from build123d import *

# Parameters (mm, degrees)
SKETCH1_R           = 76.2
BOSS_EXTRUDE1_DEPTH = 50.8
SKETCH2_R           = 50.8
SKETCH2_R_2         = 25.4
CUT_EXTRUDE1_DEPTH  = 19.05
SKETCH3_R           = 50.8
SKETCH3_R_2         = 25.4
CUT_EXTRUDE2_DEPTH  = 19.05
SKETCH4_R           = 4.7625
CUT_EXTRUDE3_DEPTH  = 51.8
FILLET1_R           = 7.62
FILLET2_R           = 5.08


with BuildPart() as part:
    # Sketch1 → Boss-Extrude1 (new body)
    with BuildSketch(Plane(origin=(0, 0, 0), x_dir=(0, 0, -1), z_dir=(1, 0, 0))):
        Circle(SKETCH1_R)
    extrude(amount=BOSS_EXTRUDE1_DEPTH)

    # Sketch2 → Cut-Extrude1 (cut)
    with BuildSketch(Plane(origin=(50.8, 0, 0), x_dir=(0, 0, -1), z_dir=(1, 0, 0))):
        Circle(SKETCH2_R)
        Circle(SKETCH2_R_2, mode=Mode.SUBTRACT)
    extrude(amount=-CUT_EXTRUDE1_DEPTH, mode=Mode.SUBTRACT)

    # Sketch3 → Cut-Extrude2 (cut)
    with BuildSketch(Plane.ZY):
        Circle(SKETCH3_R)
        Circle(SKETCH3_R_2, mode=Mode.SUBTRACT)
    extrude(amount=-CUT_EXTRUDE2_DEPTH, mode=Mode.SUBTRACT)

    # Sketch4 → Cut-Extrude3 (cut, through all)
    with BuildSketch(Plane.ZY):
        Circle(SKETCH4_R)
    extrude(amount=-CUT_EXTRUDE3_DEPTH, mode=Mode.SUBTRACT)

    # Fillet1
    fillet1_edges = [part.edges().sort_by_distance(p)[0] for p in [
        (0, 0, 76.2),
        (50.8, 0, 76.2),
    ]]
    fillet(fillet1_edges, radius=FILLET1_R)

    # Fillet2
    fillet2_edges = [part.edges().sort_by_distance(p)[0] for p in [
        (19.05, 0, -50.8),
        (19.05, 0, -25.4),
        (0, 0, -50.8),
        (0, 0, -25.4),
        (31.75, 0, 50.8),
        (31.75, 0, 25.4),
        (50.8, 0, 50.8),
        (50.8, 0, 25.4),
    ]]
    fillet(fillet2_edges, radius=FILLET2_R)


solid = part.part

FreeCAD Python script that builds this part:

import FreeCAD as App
import Part
import Sketcher
from FreeCAD import Vector
Q = App.Units.Quantity


def edges_at(feature, points):
    """Names of the edges that pass closest to the given points."""
    edges = feature.Shape.Edges
    near = lambda p: min(range(len(edges)), key=lambda i: edges[i].distToShape(Part.Vertex(*p))[0])
    return sorted({f"Edge{near(p) + 1}" for p in points})

doc = App.newDocument("Part")
body = doc.addObject("PartDesign::Body", "Body")

# Sketch on YZ plane
sketch1 = body.newObject("Sketcher::SketchObject", "Sketch")
sketch1.AttachmentSupport = (doc.getObject("YZ_Plane"), [""])
sketch1.MapMode = "FlatFace"
sketch1.addGeometry(Part.Circle(Vector(0, 0, 0), Vector(0, 0, 1), 76.2), False)
sketch1.addConstraint(Sketcher.Constraint("Coincident", 0, 3, -1, 1))
sketch1.addConstraint(Sketcher.Constraint("Diameter", 0, Q("6 in")))
pad1 = body.newObject("PartDesign::Pad", "Pad")
pad1.Profile = sketch1
pad1.Length = Q("2 in")

# Sketch on YZ plane
sketch2 = body.newObject("Sketcher::SketchObject", "Sketch001")
sketch2.AttachmentSupport = (doc.getObject("YZ_Plane"), [""])
sketch2.MapMode = "FlatFace"
sketch2.AttachmentOffset = App.Placement(Vector(0, 0, 2 * 25.4), App.Rotation())
sketch2.addGeometry(Part.Circle(Vector(0, 0, 0), Vector(0, 0, 1), 50.8), False)
sketch2.addGeometry(Part.Circle(Vector(0, 0, 0), Vector(0, 0, 1), 25.4), False)
sketch2.addConstraint(Sketcher.Constraint("Coincident", 0, 3, -1, 1))
sketch2.addConstraint(Sketcher.Constraint("Coincident", 1, 3, -1, 1))
sketch2.addConstraint(Sketcher.Constraint("Diameter", 0, Q("4 in")))
sketch2.addConstraint(Sketcher.Constraint("Diameter", 1, Q("2 in")))
pocket1 = body.newObject("PartDesign::Pocket", "Pocket")
pocket1.Profile = sketch2
pocket1.Length = Q("0.75 in")

# Sketch on YZ plane
sketch3 = body.newObject("Sketcher::SketchObject", "Sketch002")
sketch3.AttachmentSupport = (doc.getObject("YZ_Plane"), [""])
sketch3.MapMode = "FlatFace"
sketch3.addGeometry(Part.Circle(Vector(0, 0, 0), Vector(0, 0, 1), 50.8), False)
sketch3.addGeometry(Part.Circle(Vector(0, 0, 0), Vector(0, 0, 1), 25.4), False)
sketch3.addConstraint(Sketcher.Constraint("Coincident", 0, 3, -1, 1))
sketch3.addConstraint(Sketcher.Constraint("Coincident", 1, 3, -1, 1))
sketch3.addConstraint(Sketcher.Constraint("Diameter", 0, Q("4 in")))
sketch3.addConstraint(Sketcher.Constraint("Diameter", 1, Q("2 in")))
pocket2 = body.newObject("PartDesign::Pocket", "Pocket001")
pocket2.Profile = sketch3
pocket2.Length = Q("0.75 in")
pocket2.Reversed = True

# Sketch on YZ plane
sketch4 = body.newObject("Sketcher::SketchObject", "Sketch003")
sketch4.AttachmentSupport = (doc.getObject("YZ_Plane"), [""])
sketch4.MapMode = "FlatFace"
sketch4.addGeometry(Part.Circle(Vector(0, 0, 0), Vector(0, 0, 1), 4.7625), False)
sketch4.addConstraint(Sketcher.Constraint("Coincident", 0, 3, -1, 1))
sketch4.addConstraint(Sketcher.Constraint("Diameter", 0, Q("0.375 in")))
pocket3 = body.newObject("PartDesign::Pocket", "Pocket002")
pocket3.Profile = sketch4
pocket3.Type = "ThroughAll"
pocket3.Reversed = True
doc.recompute()

fillet = body.newObject("PartDesign::Fillet", "Fillet")
fillet.Base = (pocket3, edges_at(pocket3, [(0, 0, 76.2), (50.8, 0, 76.2)]))
fillet.Radius = Q("0.3 in")
doc.recompute()

fillet2 = body.newObject("PartDesign::Fillet", "Fillet001")
fillet2.Base = (fillet, edges_at(fillet, [
    (19.05, 0, -50.8),
    (19.05, 0, -25.4),
    (0, 0, -50.8),
    (0, 0, -25.4),
    (31.75, 0, 50.8),
    (31.75, 0, 25.4),
    (50.8, 0, 50.8),
    (50.8, 0, 25.4),
]))
fillet2.Radius = Q("0.2 in")

doc.recompute()
